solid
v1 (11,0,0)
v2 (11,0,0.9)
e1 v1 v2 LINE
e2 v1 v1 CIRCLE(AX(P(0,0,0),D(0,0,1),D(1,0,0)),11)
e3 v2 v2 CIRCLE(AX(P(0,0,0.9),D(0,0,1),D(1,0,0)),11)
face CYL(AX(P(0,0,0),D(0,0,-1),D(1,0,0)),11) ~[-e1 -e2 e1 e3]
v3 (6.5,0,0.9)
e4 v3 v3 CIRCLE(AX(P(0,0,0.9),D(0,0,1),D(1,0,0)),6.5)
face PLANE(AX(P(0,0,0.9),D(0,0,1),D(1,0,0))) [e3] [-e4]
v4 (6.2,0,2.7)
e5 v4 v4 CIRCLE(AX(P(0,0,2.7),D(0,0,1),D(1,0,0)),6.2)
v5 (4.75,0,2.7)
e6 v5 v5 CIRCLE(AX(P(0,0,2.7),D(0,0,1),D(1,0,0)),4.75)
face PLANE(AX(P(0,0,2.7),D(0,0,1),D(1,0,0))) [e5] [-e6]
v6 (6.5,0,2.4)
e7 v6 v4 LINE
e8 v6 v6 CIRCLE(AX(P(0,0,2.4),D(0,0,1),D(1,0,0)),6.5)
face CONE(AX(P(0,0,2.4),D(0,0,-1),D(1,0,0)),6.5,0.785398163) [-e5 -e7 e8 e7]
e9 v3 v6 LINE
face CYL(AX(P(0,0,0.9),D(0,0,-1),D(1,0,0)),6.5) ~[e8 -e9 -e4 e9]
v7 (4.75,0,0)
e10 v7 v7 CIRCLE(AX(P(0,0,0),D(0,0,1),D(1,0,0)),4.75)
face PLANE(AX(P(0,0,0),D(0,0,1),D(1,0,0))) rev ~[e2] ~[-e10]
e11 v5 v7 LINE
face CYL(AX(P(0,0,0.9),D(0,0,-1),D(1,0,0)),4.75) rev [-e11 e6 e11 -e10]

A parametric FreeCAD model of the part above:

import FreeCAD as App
import Part
import Sketcher

V = App.Vector
Q = App.Units.Quantity


def edges_at(feature, points):
    """Names of the edges that pass closest to the given points."""
    edges = feature.Shape.Edges
    near = lambda p: min(range(len(edges)), key=lambda i: edges[i].distToShape(Part.Vertex(*p))[0])
    return sorted({f"Edge{near(p) + 1}" for p in points})

doc = App.newDocument("Part")
body = doc.addObject("PartDesign::Body", "Body")

# Sketch on XY plane
sketch1 = body.newObject("Sketcher::SketchObject", "Sketch")
sketch1.AttachmentSupport = (doc.getObject("XY_Plane"), [""])
sketch1.MapMode = "FlatFace"
sketch1.addGeometry([
    Part.Circle(V(0, 0, 0), V(0, 0, 1), 11),
    Part.Circle(V(0, 0, 0), V(0, 0, 1), 4.8),
], False)
sketch1.addConstraint([
    Sketcher.Constraint("Coincident", 0, 3, -1, 1),
    Sketcher.Constraint("Coincident", 1, 3, -1, 1),
    Sketcher.Constraint("Diameter", 0, Q("22 mm")),
    Sketcher.Constraint("Diameter", 1, Q("9.5 mm")),
])
pad1 = body.newObject("PartDesign::Pad", "Pad")
pad1.Profile = sketch1
pad1.Length = 0.9

# Sketch on XY plane
sketch2 = body.newObject("Sketcher::SketchObject", "Sketch001")
sketch2.AttachmentSupport = (doc.getObject("XY_Plane"), [""])
sketch2.MapMode = "FlatFace"
sketch2.AttachmentOffset = App.Placement(V(0, 0, 0.9), App.Rotation())
sketch2.addGeometry([
    Part.Circle(V(0, 0, 0), V(0, 0, 1), 6.5),
    Part.Circle(V(0, 0, 0), V(0, 0, 1), 4.8),
], False)
sketch2.addConstraint([
    Sketcher.Constraint("Coincident", 0, 3, -1, 1),
    Sketcher.Constraint("Coincident", 1, 3, -1, 1),
    Sketcher.Constraint("Diameter", 0, Q("13 mm")),
    Sketcher.Constraint("Diameter", 1, Q("9.5 mm")),
])
pad2 = body.newObject("PartDesign::Pad", "Pad001")
pad2.Profile = sketch2
pad2.Length = 1.8
doc.recompute()

chamfer = body.newObject("PartDesign::Chamfer", "Chamfer")
chamfer.Base = (pad2, edges_at(pad2, [(-6.5, 0, 2.7)]))
chamfer.Size = 0.3

doc.recompute()
